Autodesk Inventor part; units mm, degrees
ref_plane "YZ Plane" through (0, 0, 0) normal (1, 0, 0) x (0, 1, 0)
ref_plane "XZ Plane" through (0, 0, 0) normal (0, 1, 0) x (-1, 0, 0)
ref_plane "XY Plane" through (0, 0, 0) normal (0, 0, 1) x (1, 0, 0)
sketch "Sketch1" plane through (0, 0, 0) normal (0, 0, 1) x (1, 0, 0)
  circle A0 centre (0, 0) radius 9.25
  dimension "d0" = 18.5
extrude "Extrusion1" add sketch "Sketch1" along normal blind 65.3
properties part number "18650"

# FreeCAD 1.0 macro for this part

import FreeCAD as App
import Part
import Sketcher

V = App.Vector

doc = App.newDocument("Part")
body = doc.addObject("PartDesign::Body", "Body")

sketch1 = body.newObject("Sketcher::SketchObject", "Sketch")
sketch1.AttachmentSupport = (doc.getObject("XY_Plane"), [""])
sketch1.MapMode = "FlatFace"
sketch1.addGeometry(Part.Circle(V(0, 0, 0), V(0, 0, 1), 9), False)
sketch1.addConstraint([
    Sketcher.Constraint("Coincident", 0, 3, -1, 1),
    Sketcher.Constraint("Diameter", 0, 18.5),
])
pad1 = body.newObject("PartDesign::Pad", "Pad")
pad1.Profile = sketch1
pad1.Length = 65.3

doc.recompute()
